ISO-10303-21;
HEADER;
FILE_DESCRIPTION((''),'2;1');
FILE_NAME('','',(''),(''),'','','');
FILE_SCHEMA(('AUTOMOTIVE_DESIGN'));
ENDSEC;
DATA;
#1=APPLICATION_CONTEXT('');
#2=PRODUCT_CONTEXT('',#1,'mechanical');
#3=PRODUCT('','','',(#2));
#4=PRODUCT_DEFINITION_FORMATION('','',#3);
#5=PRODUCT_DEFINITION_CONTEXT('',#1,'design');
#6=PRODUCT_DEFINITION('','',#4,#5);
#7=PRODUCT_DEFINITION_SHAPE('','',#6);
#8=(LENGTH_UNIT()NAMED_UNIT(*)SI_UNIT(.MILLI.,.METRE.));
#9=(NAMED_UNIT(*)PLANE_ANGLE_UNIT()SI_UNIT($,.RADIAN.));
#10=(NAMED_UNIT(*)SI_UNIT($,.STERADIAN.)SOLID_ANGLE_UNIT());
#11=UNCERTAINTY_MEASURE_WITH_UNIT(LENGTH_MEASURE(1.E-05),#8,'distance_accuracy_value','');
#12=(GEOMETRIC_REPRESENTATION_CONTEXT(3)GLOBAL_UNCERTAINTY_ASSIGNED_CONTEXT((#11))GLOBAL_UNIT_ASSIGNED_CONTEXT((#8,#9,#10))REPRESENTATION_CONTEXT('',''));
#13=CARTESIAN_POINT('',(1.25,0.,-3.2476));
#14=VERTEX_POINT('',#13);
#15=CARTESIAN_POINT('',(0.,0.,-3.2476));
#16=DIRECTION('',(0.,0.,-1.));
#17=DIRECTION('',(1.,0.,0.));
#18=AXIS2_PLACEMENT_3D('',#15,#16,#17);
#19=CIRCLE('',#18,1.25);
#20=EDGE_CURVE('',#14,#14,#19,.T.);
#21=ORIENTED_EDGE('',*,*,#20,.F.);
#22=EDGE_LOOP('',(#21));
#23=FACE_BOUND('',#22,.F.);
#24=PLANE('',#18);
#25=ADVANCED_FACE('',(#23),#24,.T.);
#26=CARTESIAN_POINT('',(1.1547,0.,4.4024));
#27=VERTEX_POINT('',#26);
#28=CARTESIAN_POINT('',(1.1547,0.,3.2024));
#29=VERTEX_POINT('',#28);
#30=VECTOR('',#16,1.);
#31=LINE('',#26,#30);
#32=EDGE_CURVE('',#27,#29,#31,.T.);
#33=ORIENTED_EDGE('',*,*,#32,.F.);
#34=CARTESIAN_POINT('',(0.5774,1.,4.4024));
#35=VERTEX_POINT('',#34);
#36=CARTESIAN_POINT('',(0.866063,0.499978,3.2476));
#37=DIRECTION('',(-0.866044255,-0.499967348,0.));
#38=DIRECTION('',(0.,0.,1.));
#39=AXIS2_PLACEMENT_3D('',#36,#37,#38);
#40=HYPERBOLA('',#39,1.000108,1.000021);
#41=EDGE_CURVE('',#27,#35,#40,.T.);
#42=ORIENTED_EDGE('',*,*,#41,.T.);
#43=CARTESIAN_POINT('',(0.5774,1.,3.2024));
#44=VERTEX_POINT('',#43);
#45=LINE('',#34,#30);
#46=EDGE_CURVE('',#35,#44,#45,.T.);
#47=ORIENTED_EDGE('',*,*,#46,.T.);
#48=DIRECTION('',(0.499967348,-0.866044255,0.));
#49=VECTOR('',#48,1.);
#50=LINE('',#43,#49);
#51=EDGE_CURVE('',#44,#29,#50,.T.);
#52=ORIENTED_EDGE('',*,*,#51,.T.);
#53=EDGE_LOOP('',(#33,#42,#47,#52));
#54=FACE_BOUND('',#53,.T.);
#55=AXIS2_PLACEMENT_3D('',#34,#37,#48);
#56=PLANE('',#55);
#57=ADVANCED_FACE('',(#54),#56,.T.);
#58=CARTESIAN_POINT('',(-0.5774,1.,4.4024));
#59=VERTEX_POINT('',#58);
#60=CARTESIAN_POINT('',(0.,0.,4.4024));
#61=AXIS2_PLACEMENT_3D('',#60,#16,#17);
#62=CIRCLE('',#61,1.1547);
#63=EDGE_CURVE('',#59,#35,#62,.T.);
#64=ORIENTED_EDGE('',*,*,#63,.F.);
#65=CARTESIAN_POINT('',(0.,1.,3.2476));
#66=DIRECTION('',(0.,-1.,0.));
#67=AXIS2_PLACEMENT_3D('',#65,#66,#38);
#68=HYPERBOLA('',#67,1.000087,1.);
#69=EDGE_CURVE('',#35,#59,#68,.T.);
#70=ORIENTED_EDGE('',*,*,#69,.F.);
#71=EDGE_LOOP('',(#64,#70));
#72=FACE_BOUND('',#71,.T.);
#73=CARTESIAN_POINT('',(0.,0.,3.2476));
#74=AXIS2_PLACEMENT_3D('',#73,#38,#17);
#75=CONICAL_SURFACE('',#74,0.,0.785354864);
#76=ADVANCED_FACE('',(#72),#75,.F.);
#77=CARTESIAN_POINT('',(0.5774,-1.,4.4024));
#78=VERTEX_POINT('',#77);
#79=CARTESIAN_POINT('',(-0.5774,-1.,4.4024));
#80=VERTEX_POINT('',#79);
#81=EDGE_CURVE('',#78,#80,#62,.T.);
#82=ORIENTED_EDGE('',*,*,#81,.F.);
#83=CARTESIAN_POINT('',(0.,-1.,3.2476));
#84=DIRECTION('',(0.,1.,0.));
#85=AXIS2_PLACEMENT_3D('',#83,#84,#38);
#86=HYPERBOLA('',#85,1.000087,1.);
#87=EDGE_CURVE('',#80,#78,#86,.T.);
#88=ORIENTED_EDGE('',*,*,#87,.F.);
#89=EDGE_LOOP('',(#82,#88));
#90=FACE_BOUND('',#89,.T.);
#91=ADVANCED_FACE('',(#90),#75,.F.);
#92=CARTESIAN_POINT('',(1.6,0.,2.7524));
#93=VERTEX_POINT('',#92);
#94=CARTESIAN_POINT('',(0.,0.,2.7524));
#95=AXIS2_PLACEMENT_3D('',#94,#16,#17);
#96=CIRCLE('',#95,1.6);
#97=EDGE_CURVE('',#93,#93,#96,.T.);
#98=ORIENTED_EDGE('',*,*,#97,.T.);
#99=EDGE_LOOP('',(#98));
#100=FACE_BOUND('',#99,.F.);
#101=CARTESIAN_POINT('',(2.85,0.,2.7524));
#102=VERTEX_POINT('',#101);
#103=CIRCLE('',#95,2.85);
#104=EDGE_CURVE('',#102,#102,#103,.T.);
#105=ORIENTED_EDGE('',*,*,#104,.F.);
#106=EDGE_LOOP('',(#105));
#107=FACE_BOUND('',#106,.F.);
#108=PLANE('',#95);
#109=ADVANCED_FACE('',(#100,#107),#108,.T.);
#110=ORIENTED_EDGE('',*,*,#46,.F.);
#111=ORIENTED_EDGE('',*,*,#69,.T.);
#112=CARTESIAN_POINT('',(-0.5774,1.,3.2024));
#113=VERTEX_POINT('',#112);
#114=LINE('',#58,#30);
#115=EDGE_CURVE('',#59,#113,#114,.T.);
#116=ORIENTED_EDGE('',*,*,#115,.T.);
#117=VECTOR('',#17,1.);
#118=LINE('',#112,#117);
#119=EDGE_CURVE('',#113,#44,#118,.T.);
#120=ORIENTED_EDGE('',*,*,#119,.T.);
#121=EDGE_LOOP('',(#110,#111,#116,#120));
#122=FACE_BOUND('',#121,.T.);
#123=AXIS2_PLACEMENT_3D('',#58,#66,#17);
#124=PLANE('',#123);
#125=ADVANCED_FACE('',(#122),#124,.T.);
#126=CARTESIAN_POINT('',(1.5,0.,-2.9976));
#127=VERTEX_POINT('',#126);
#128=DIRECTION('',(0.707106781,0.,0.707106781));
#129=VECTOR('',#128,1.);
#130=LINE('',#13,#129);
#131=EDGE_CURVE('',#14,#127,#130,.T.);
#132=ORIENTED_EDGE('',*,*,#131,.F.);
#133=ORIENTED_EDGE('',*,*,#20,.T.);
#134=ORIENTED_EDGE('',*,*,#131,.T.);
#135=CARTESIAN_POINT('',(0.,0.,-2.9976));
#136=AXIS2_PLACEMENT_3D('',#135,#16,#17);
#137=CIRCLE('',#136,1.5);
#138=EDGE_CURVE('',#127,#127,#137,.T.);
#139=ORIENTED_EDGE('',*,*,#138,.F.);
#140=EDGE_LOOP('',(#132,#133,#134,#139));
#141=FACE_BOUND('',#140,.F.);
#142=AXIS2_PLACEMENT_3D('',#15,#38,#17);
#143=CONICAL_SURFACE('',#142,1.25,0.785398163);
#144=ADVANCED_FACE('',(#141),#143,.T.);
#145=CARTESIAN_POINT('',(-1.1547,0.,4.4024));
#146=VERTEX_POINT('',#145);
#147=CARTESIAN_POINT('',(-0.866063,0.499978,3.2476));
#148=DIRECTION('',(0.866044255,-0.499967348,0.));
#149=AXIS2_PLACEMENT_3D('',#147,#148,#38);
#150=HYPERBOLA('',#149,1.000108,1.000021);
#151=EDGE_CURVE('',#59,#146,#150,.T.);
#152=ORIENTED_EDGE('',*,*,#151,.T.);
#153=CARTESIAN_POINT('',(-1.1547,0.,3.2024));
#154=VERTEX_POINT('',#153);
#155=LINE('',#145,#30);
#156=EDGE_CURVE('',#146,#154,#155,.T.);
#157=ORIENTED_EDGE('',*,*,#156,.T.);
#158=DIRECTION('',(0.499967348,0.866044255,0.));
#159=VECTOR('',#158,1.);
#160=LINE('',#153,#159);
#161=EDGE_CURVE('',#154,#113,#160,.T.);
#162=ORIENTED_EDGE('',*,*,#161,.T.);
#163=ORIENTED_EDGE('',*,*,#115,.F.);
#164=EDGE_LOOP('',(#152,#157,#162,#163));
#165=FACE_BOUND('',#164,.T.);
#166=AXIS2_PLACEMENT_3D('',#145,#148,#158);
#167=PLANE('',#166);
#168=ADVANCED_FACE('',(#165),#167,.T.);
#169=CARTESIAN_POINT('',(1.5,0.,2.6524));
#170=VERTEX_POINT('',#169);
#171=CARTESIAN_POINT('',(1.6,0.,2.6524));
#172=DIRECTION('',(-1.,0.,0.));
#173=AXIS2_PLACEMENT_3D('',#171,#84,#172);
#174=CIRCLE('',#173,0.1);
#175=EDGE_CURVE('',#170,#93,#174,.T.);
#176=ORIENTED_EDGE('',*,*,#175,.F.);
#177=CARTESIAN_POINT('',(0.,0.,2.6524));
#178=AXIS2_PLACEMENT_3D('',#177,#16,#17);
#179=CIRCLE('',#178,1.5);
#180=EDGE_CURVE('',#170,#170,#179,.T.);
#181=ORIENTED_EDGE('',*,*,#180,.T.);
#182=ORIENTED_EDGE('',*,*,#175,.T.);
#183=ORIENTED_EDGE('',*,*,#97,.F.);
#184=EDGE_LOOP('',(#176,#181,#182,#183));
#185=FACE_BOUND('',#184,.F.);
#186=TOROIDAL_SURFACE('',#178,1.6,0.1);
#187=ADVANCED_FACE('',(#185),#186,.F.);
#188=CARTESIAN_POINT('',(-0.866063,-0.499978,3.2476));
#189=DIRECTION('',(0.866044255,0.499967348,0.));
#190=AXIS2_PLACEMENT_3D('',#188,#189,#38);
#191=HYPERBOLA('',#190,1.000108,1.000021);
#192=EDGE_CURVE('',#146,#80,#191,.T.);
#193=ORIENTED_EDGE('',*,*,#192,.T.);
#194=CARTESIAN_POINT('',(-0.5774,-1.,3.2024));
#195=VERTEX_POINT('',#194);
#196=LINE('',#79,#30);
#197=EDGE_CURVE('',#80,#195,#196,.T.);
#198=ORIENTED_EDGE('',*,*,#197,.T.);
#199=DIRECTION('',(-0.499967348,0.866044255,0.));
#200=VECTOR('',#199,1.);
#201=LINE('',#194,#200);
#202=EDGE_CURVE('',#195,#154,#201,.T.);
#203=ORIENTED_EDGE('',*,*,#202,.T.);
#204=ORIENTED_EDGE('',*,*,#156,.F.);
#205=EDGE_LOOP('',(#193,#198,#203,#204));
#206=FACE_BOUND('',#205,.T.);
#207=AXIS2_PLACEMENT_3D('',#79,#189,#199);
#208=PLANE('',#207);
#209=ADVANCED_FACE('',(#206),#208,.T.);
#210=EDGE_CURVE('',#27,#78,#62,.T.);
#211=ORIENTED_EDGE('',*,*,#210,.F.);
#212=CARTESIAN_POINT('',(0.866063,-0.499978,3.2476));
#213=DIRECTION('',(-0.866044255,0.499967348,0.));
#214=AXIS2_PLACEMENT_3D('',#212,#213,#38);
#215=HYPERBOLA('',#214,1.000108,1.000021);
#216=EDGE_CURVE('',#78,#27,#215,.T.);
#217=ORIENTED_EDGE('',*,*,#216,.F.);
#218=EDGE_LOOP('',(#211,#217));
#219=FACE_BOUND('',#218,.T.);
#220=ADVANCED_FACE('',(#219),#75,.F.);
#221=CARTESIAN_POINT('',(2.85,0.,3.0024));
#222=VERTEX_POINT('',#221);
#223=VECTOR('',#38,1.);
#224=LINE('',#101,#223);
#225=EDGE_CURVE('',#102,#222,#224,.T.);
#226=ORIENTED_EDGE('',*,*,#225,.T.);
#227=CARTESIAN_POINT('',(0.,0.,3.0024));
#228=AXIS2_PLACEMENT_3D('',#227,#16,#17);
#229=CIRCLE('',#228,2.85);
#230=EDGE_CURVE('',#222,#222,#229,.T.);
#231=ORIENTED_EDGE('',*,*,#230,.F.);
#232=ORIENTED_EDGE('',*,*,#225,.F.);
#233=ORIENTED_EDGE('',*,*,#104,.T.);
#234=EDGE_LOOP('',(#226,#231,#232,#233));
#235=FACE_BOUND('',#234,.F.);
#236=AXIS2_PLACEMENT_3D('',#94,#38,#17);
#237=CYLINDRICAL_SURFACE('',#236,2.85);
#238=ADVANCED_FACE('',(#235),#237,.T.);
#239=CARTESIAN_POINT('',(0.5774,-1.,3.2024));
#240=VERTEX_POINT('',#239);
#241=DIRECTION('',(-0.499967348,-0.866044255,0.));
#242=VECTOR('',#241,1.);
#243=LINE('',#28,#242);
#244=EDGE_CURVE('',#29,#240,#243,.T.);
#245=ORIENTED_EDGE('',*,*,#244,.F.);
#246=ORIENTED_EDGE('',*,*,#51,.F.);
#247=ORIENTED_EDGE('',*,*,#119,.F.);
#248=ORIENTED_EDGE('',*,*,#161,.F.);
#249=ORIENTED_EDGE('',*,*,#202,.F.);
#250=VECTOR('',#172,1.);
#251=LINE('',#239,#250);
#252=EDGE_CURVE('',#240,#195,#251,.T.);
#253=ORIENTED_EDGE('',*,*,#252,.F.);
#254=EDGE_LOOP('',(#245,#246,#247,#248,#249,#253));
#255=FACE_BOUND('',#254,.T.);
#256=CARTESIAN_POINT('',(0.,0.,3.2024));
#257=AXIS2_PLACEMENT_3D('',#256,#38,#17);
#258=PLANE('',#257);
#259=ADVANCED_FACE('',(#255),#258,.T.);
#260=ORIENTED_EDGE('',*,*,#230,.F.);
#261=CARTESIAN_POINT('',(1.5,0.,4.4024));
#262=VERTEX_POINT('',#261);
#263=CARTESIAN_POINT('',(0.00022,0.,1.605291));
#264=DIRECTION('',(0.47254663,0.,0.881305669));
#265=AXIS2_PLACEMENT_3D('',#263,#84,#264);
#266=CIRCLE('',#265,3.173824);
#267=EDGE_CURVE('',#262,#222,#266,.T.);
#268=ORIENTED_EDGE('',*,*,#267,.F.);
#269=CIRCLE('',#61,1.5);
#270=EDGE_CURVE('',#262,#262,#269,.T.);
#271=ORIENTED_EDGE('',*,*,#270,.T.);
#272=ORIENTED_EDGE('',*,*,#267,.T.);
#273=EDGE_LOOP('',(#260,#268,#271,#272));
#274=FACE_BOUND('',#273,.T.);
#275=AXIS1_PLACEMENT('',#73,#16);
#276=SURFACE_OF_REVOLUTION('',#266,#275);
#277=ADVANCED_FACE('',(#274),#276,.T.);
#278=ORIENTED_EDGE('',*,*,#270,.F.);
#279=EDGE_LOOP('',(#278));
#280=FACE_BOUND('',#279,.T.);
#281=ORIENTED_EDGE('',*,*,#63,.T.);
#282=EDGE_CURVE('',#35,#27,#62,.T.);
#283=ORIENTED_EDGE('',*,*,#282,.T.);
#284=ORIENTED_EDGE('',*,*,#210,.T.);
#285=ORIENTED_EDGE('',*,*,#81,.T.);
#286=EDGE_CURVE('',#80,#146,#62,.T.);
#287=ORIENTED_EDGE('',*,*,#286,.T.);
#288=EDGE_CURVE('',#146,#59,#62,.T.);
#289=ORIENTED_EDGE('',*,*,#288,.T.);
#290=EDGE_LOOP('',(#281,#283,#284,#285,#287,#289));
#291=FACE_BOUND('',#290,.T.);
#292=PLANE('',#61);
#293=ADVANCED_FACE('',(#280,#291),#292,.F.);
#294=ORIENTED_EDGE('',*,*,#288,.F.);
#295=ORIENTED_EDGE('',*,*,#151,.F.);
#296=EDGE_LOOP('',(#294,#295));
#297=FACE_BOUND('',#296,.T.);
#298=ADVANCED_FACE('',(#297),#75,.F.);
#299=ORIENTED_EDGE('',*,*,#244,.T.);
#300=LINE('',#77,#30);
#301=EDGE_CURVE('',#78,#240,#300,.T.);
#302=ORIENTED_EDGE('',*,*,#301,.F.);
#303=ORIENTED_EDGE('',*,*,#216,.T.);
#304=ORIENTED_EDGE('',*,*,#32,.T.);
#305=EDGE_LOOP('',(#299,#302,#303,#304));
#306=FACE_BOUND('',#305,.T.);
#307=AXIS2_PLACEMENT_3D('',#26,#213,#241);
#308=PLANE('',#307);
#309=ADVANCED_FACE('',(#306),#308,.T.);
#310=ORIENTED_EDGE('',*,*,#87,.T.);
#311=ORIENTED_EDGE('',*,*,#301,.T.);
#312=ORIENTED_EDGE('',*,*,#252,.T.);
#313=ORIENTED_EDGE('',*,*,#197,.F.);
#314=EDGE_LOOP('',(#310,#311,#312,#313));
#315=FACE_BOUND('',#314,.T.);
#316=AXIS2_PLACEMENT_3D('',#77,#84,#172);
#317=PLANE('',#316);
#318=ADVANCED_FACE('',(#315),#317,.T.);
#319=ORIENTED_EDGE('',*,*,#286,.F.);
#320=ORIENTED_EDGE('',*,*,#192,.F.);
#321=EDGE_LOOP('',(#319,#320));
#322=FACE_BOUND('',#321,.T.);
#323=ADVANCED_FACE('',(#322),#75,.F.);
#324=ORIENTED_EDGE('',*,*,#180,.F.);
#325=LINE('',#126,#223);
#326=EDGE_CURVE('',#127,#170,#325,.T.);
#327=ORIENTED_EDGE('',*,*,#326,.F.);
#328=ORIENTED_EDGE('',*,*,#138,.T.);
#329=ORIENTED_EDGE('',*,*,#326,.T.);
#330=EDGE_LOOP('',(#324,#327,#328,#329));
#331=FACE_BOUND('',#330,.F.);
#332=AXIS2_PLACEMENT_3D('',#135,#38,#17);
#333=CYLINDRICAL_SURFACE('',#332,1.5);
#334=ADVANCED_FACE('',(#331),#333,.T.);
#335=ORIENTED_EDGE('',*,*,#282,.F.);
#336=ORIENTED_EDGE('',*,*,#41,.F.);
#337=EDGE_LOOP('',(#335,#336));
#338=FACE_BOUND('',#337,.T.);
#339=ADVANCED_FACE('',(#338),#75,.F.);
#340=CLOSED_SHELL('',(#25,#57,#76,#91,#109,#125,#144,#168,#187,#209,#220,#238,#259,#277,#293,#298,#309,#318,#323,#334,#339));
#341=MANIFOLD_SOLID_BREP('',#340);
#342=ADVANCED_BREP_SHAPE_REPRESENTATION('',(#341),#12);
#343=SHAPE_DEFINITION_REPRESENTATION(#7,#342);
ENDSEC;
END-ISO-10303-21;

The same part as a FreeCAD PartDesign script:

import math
import FreeCAD as App
import Part
import Sketcher
from FreeCAD import Vector
Q = App.Units.Quantity


def add_polygon(sketch, points):
    """Adds a closed chain of lines whose ends are joined by coincident constraints."""
    first, n = sketch.GeometryCount, len(points)
    for a, b in zip(points, points[1:] + points[:1]):
        sketch.addGeometry(Part.LineSegment(App.Vector(*a, 0), App.Vector(*b, 0)), False)
    for i in range(n):
        sketch.addConstraint(Sketcher.Constraint("Coincident", first + i, 2, first + (i + 1) % n, 1))

doc = App.newDocument("Part")
body = doc.addObject("PartDesign::Body", "Body")

sketch1 = body.newObject("Sketcher::SketchObject", "Sketch")
sketch1.AttachmentSupport = (doc.getObject("XZ_Plane"), [""])
sketch1.MapMode = "FlatFace"
sketch1.addGeometry([
    Part.LineSegment(Vector(0, -3.25, 0), Vector(0, 3.25, 0)),
    Part.LineSegment(Vector(0, 3.25, 0), Vector(1.15, 4.4, 0)),
    Part.LineSegment(Vector(1.15, 4.4, 0), Vector(1.5, 4.4, 0)),
    Part.ArcOfCircle(Part.Circle(Vector(0, 1.6, 0), Vector(0, 0, 1), 3.17), math.radians(26), math.radians(62)),
    Part.LineSegment(Vector(2.85, 3, 0), Vector(2.85, 2.75, 0)),
    Part.LineSegment(Vector(2.85, 2.75, 0), Vector(1.6, 2.75, 0)),
    Part.ArcOfCircle(Part.Circle(Vector(1.6, 2.65, 0), Vector(0, 0, 1), 0.1), math.radians(90), math.radians(180)),
    Part.LineSegment(Vector(1.5, 2.65, 0), Vector(1.5, -3, 0)),
    Part.LineSegment(Vector(1.5, -3, 0), Vector(1.25, -3.25, 0)),
    Part.LineSegment(Vector(1.25, -3.25, 0), Vector(0, -3.25, 0)),
], False)
sketch1.addConstraint([
    Sketcher.Constraint("Coincident", 0, 2, 1, 1),
    Sketcher.Constraint("Coincident", 1, 2, 2, 1),
    Sketcher.Constraint("Coincident", 2, 2, 3, 2),
    Sketcher.Constraint("Coincident", 3, 1, 4, 1),
    Sketcher.Constraint("Coincident", 4, 2, 5, 1),
    Sketcher.Constraint("Tangent", 5, 2, 6, 1),
    Sketcher.Constraint("Tangent", 6, 2, 7, 1),
    Sketcher.Constraint("Coincident", 7, 2, 8, 1),
    Sketcher.Constraint("Coincident", 8, 2, 9, 1),
    Sketcher.Constraint("Coincident", 9, 2, 0, 1),
    Sketcher.Constraint("Vertical", 0),
    Sketcher.Constraint("Horizontal", 2),
    Sketcher.Constraint("Vertical", 4),
    Sketcher.Constraint("Horizontal", 5),
    Sketcher.Constraint("Vertical", 7),
    Sketcher.Constraint("Horizontal", 9),
    Sketcher.Constraint("Symmetric", 0, 2, 9, 2, -1, 1),
    Sketcher.Constraint("PointOnObject", 3, 3, -2),
    Sketcher.Constraint("Parallel", 1, 8),
    Sketcher.Constraint("Vertical", 2, 2, 6, 2),
    Sketcher.Constraint("Equal", 5, 9),
    Sketcher.Constraint("Angle", 8, Q("-135 deg")),
    Sketcher.Constraint("DistanceY", 8, 2, 5, 2, 6.0),
    Sketcher.Constraint("DistanceY", 4, 2, 4, 1, 0.25),
    Sketcher.Constraint("Radius", 6, 0.1),
    Sketcher.Constraint("DistanceY", 4, 2, 2, 2, 1.65),
    Sketcher.Constraint("DistanceX", 8, 2, 7, 2, 0.25),
    Sketcher.Constraint("DistanceX", 5, 2, 5, 1, 1.25),
    Sketcher.Constraint("Distance", 1, 1.633),
])
revolution = body.newObject("PartDesign::Revolution", "Revolution")
revolution.Profile = sketch1
revolution.ReferenceAxis = (sketch1, ["V_Axis"])
revolution.Angle = 360

sketch2 = body.newObject("Sketcher::SketchObject", "Sketch001")
sketch2.AttachmentSupport = (doc.getObject("XY_Plane"), [""])
sketch2.MapMode = "FlatFace"
sketch2.AttachmentOffset = App.Placement(Vector(0, 0, 4.4024), App.Rotation())
add_polygon(sketch2, [(0.6, -1), (1.2, 0), (0.6, 1), (-0.6, 1), (-1.2, 0), (-0.6, -1)])
sketch2.addConstraint([
    Sketcher.Constraint("Horizontal", 2),
    Sketcher.Constraint("Horizontal", 5),
    Sketcher.Constraint("Symmetric", 0, 2, 3, 2, -1, 1),
    Sketcher.Constraint("Symmetric", 1, 2, 4, 2, -1, 1),
    Sketcher.Constraint("PointOnObject", 0, 2, -1),
    Sketcher.Constraint("Parallel", 0, 3),
    Sketcher.Constraint("Vertical", 2, 2, 4, 2),
    Sketcher.Constraint("DistanceY", -1, 1, 1, 2, 1.0),
    Sketcher.Constraint("DistanceX", 2, 2, 2, 1, 1.1548),
    Sketcher.Constraint("DistanceX", 2, 2, 0, 2, 1.732),
])
pocket1 = body.newObject("PartDesign::Pocket", "Pocket")
pocket1.Profile = sketch2
pocket1.Length = 1.2

doc.recompute()
